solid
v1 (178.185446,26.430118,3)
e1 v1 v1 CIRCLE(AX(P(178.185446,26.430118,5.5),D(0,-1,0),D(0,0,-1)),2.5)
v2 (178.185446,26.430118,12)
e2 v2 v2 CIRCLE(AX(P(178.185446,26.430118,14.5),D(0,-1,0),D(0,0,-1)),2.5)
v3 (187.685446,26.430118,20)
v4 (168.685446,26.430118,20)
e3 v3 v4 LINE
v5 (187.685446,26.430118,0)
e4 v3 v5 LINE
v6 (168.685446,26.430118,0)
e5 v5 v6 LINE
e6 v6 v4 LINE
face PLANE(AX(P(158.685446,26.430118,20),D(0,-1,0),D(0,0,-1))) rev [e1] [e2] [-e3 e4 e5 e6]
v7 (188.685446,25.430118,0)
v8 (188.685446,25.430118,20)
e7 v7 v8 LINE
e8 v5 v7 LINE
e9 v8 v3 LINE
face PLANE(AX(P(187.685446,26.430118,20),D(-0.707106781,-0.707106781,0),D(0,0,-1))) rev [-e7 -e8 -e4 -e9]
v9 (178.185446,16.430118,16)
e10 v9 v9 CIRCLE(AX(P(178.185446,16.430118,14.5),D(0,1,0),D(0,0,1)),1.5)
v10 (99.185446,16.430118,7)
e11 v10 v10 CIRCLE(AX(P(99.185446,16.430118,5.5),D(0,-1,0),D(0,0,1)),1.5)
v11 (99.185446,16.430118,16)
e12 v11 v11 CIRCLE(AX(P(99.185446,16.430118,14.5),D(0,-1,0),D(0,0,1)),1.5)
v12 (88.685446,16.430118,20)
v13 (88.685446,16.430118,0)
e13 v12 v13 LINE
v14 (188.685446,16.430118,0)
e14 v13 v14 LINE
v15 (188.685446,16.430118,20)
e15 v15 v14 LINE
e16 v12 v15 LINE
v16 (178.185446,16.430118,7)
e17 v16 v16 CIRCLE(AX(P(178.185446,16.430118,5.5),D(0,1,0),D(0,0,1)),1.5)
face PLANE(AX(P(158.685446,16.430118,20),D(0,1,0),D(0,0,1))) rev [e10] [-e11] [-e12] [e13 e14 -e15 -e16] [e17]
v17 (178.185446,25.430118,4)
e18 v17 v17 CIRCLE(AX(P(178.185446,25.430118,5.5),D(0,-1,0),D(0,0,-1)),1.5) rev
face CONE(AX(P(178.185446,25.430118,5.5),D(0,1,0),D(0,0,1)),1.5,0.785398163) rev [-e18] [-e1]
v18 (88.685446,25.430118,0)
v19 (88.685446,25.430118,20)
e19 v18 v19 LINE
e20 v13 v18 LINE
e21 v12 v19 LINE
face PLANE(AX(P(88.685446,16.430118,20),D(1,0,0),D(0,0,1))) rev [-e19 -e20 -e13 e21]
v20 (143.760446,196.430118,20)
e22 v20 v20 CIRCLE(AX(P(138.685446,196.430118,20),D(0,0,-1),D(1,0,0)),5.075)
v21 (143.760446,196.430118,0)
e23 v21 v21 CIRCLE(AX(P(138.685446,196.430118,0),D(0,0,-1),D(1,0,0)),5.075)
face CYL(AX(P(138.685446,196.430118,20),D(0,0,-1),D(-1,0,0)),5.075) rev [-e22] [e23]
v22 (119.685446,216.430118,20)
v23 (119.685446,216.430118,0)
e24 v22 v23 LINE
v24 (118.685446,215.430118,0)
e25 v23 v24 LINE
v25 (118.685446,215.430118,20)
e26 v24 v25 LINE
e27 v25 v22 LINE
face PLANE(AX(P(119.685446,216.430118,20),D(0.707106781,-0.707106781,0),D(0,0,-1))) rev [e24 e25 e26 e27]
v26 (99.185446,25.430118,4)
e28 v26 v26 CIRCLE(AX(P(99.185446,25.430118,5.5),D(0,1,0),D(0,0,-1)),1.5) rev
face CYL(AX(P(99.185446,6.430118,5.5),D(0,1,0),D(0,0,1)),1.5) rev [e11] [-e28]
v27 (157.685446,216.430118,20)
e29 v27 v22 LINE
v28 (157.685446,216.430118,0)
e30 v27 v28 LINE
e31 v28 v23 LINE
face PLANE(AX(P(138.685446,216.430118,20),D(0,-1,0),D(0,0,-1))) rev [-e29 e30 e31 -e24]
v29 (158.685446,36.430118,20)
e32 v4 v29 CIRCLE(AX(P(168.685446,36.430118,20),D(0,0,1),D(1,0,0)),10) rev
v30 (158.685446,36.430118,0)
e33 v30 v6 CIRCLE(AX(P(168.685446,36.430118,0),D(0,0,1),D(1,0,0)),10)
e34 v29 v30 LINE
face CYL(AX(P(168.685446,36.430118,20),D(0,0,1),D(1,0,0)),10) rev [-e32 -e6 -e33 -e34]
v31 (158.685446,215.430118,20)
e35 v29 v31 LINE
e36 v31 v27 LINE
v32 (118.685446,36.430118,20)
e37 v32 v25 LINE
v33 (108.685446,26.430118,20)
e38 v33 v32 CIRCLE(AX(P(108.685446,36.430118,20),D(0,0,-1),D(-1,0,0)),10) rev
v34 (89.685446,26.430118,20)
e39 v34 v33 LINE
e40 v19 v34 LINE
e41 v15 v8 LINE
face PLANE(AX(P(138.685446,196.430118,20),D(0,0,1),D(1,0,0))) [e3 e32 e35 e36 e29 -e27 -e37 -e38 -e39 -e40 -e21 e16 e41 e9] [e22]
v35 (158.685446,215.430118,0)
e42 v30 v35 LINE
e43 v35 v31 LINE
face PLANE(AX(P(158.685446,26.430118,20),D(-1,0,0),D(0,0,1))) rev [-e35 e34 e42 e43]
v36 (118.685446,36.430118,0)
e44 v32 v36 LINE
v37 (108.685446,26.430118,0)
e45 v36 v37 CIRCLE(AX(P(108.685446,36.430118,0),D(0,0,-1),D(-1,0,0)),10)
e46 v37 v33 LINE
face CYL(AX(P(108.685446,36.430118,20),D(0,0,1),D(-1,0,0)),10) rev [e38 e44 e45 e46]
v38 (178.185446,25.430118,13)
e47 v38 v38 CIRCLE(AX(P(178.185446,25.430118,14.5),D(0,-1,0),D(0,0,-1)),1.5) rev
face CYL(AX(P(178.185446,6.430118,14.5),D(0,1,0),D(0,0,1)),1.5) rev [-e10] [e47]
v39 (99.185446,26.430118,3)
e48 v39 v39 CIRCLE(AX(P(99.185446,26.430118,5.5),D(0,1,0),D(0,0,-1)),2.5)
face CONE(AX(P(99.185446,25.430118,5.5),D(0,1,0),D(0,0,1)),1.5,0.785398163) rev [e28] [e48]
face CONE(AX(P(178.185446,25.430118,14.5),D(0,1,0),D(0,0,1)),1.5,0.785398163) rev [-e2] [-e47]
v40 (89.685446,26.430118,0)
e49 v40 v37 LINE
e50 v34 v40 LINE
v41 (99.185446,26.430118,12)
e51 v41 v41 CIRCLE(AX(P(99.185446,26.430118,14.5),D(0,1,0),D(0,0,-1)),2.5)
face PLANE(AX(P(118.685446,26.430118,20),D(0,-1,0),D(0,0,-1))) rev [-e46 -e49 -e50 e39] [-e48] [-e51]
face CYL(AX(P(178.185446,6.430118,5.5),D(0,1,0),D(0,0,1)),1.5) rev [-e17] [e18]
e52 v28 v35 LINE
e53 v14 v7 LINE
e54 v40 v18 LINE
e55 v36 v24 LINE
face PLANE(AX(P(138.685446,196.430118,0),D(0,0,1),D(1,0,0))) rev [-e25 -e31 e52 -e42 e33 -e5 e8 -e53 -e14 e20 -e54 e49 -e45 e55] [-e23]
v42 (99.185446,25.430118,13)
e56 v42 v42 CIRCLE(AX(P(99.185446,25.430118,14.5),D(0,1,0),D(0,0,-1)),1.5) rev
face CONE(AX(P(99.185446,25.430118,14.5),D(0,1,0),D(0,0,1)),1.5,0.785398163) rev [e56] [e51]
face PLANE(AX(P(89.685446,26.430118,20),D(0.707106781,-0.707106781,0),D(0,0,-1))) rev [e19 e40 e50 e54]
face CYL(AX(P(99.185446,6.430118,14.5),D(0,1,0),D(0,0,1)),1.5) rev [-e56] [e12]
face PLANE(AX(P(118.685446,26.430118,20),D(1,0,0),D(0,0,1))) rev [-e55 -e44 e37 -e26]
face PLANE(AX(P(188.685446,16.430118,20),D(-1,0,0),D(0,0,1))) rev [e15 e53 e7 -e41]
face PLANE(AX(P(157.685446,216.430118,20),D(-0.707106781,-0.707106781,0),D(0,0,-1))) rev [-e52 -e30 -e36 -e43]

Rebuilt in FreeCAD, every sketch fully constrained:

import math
import FreeCAD as App
import Part
import Sketcher

V = App.Vector
Q = App.Units.Quantity


def edges_at(feature, points):
    """Names of the edges that pass closest to the given points."""
    edges = feature.Shape.Edges
    near = lambda p: min(range(len(edges)), key=lambda i: edges[i].distToShape(Part.Vertex(*p))[0])
    return sorted({f"Edge{near(p) + 1}" for p in points})

doc = App.newDocument("Part")
body = doc.addObject("PartDesign::Body", "Body")

# Sketch on XY plane
sketch1 = body.newObject("Sketcher::SketchObject", "Sketch")
sketch1.AttachmentSupport = (doc.getObject("XY_Plane"), [""])
sketch1.MapMode = "FlatFace"
sketch1.addGeometry([
    Part.LineSegment(V(138.685446, 16.430118, 0), V(188.685446, 16.430118, 0)),  # 0
    Part.LineSegment(V(188.685446, 16.430118, 0), V(188.685446, 26.430118, 0)),  # 1
    Part.LineSegment(V(188.685446, 26.430118, 0), V(158.685446, 26.430118, 0)),  # 2
    Part.LineSegment(V(158.685446, 26.430118, 0), V(158.685446, 216.430118, 0)),  # 3
    Part.LineSegment(V(158.685446, 216.430118, 0), V(138.685446, 216.430118, 0)),  # 4
    Part.LineSegment(V(138.685446, 216.430118, 0), V(138.685446, 201.505118, 0)),  # 5
    Part.ArcOfCircle(Part.Circle(V(138.685446, 196.430118, 0), V(0, 0, 1), 5.075), math.radians(-90), math.radians(90)),  # 6
    Part.LineSegment(V(138.685446, 191.355118, 0), V(138.685446, 16.430118, 0)),  # 7
], False)
sketch1.addConstraint([
    Sketcher.Constraint("Coincident", 0, 2, 1, 1),
    Sketcher.Constraint("Coincident", 1, 2, 2, 1),
    Sketcher.Constraint("Coincident", 2, 2, 3, 1),
    Sketcher.Constraint("Coincident", 3, 2, 4, 1),
    Sketcher.Constraint("Coincident", 4, 2, 5, 1),
    Sketcher.Constraint("Coincident", 5, 2, 6, 2),
    Sketcher.Constraint("Coincident", 6, 1, 7, 1),
    Sketcher.Constraint("Coincident", 7, 2, 0, 1),
    Sketcher.Constraint("Horizontal", 0),
    Sketcher.Constraint("Vertical", 1),
    Sketcher.Constraint("Horizontal", 2),
    Sketcher.Constraint("Vertical", 3),
    Sketcher.Constraint("Horizontal", 4),
    Sketcher.Constraint("Vertical", 5),
    Sketcher.Constraint("Vertical", 7),
    Sketcher.Constraint("Vertical", 6, 3, 4, 2),
    Sketcher.Constraint("Vertical", 5, 2, 6, 1),
    Sketcher.Constraint("DistanceX", 0, 1, 0, 2, Q("50 mm")),
    Sketcher.Constraint("DistanceX", 2, 2, 2, 1, Q("30 mm")),
    Sketcher.Constraint("DistanceY", 1, 1, 1, 2, Q("10 mm")),
    Sketcher.Constraint("DistanceY", 3, 1, 3, 2, Q("190 mm")),
    Sketcher.Constraint("Radius", 6, Q("5.075 mm")),
    Sketcher.Constraint("DistanceY", 0, 2, 6, 3, Q("180 mm")),
    Sketcher.Constraint("DistanceY", -1, 1, 6, 3, Q("196.430118 mm")),
    Sketcher.Constraint("DistanceX", -1, 1, 6, 3, Q("138.685446 mm")),
])
pad1 = body.newObject("PartDesign::Pad", "Pad")
pad1.Profile = sketch1
pad1.Length = 20
doc.recompute()

fillet = body.newObject("PartDesign::Fillet", "Fillet")
fillet.Base = (pad1, edges_at(pad1, [(158.685, 26.43, 10)]))
fillet.Radius = 10
doc.recompute()

chamfer = body.newObject("PartDesign::Chamfer", "Chamfer")
chamfer.Base = (fillet, edges_at(fillet, [(158.685, 216.43, 10), (188.685, 26.43, 10)]))
chamfer.Size = 1

# Sketch on XZ plane
sketch2 = body.newObject("Sketcher::SketchObject", "Sketch001")
sketch2.AttachmentSupport = (doc.getObject("XZ_Plane"), [""])
sketch2.MapMode = "FlatFace"
sketch2.AttachmentOffset = App.Placement(V(0, 0, -26.430118), App.Rotation())
sketch2.addGeometry([
    Part.Circle(V(178.185446, 5.5, 0), V(0, 0, 1), 1.5),
    Part.Circle(V(178.185446, 14.5, 0), V(0, 0, 1), 1.5),
], False)
sketch2.addConstraint([
    Sketcher.Constraint("Equal", 0, 1),
    Sketcher.Constraint("Vertical", 0, 3, 1, 3),
    Sketcher.Constraint("Diameter", 0, Q("3 mm")),
    Sketcher.Constraint("DistanceY", 0, 3, 1, 3, Q("9 mm")),
    Sketcher.Constraint("DistanceY", -1, 1, 0, 3, Q("5.5 mm")),
    Sketcher.Constraint("DistanceX", -1, 1, 0, 3, Q("178.185446 mm")),
])
pocket1 = body.newObject("PartDesign::Pocket", "Pocket")
pocket1.Profile = sketch2
pocket1.Length = 20
pocket1.Reversed = True
doc.recompute()

chamfer2 = body.newObject("PartDesign::Chamfer", "Chamfer001")
chamfer2.Base = (pocket1, edges_at(pocket1, [(178.185, 26.43, 4), (178.185, 26.43, 13)]))
chamfer2.Size = 1
body2 = doc.addObject("PartDesign::Body", "Body001")
doc.recompute()

body2.BaseFeature = body
doc.recompute()

mirroring = doc.addObject("Part::Mirroring", "Mirroring")
mirroring.Source = body
mirroring.Base = V(138.685446, 16.430118, 20)
mirroring.Normal = V(1, 0, 0)
body3 = doc.addObject("PartDesign::Body", "Body002")
body3.BaseFeature = mirroring
boolean = body2.newObject("PartDesign::Boolean", "Boolean")
boolean.Type = "Fuse"
boolean.addObjects([body3])
doc.recompute()
mirroring.Visibility = False

doc.recompute()
